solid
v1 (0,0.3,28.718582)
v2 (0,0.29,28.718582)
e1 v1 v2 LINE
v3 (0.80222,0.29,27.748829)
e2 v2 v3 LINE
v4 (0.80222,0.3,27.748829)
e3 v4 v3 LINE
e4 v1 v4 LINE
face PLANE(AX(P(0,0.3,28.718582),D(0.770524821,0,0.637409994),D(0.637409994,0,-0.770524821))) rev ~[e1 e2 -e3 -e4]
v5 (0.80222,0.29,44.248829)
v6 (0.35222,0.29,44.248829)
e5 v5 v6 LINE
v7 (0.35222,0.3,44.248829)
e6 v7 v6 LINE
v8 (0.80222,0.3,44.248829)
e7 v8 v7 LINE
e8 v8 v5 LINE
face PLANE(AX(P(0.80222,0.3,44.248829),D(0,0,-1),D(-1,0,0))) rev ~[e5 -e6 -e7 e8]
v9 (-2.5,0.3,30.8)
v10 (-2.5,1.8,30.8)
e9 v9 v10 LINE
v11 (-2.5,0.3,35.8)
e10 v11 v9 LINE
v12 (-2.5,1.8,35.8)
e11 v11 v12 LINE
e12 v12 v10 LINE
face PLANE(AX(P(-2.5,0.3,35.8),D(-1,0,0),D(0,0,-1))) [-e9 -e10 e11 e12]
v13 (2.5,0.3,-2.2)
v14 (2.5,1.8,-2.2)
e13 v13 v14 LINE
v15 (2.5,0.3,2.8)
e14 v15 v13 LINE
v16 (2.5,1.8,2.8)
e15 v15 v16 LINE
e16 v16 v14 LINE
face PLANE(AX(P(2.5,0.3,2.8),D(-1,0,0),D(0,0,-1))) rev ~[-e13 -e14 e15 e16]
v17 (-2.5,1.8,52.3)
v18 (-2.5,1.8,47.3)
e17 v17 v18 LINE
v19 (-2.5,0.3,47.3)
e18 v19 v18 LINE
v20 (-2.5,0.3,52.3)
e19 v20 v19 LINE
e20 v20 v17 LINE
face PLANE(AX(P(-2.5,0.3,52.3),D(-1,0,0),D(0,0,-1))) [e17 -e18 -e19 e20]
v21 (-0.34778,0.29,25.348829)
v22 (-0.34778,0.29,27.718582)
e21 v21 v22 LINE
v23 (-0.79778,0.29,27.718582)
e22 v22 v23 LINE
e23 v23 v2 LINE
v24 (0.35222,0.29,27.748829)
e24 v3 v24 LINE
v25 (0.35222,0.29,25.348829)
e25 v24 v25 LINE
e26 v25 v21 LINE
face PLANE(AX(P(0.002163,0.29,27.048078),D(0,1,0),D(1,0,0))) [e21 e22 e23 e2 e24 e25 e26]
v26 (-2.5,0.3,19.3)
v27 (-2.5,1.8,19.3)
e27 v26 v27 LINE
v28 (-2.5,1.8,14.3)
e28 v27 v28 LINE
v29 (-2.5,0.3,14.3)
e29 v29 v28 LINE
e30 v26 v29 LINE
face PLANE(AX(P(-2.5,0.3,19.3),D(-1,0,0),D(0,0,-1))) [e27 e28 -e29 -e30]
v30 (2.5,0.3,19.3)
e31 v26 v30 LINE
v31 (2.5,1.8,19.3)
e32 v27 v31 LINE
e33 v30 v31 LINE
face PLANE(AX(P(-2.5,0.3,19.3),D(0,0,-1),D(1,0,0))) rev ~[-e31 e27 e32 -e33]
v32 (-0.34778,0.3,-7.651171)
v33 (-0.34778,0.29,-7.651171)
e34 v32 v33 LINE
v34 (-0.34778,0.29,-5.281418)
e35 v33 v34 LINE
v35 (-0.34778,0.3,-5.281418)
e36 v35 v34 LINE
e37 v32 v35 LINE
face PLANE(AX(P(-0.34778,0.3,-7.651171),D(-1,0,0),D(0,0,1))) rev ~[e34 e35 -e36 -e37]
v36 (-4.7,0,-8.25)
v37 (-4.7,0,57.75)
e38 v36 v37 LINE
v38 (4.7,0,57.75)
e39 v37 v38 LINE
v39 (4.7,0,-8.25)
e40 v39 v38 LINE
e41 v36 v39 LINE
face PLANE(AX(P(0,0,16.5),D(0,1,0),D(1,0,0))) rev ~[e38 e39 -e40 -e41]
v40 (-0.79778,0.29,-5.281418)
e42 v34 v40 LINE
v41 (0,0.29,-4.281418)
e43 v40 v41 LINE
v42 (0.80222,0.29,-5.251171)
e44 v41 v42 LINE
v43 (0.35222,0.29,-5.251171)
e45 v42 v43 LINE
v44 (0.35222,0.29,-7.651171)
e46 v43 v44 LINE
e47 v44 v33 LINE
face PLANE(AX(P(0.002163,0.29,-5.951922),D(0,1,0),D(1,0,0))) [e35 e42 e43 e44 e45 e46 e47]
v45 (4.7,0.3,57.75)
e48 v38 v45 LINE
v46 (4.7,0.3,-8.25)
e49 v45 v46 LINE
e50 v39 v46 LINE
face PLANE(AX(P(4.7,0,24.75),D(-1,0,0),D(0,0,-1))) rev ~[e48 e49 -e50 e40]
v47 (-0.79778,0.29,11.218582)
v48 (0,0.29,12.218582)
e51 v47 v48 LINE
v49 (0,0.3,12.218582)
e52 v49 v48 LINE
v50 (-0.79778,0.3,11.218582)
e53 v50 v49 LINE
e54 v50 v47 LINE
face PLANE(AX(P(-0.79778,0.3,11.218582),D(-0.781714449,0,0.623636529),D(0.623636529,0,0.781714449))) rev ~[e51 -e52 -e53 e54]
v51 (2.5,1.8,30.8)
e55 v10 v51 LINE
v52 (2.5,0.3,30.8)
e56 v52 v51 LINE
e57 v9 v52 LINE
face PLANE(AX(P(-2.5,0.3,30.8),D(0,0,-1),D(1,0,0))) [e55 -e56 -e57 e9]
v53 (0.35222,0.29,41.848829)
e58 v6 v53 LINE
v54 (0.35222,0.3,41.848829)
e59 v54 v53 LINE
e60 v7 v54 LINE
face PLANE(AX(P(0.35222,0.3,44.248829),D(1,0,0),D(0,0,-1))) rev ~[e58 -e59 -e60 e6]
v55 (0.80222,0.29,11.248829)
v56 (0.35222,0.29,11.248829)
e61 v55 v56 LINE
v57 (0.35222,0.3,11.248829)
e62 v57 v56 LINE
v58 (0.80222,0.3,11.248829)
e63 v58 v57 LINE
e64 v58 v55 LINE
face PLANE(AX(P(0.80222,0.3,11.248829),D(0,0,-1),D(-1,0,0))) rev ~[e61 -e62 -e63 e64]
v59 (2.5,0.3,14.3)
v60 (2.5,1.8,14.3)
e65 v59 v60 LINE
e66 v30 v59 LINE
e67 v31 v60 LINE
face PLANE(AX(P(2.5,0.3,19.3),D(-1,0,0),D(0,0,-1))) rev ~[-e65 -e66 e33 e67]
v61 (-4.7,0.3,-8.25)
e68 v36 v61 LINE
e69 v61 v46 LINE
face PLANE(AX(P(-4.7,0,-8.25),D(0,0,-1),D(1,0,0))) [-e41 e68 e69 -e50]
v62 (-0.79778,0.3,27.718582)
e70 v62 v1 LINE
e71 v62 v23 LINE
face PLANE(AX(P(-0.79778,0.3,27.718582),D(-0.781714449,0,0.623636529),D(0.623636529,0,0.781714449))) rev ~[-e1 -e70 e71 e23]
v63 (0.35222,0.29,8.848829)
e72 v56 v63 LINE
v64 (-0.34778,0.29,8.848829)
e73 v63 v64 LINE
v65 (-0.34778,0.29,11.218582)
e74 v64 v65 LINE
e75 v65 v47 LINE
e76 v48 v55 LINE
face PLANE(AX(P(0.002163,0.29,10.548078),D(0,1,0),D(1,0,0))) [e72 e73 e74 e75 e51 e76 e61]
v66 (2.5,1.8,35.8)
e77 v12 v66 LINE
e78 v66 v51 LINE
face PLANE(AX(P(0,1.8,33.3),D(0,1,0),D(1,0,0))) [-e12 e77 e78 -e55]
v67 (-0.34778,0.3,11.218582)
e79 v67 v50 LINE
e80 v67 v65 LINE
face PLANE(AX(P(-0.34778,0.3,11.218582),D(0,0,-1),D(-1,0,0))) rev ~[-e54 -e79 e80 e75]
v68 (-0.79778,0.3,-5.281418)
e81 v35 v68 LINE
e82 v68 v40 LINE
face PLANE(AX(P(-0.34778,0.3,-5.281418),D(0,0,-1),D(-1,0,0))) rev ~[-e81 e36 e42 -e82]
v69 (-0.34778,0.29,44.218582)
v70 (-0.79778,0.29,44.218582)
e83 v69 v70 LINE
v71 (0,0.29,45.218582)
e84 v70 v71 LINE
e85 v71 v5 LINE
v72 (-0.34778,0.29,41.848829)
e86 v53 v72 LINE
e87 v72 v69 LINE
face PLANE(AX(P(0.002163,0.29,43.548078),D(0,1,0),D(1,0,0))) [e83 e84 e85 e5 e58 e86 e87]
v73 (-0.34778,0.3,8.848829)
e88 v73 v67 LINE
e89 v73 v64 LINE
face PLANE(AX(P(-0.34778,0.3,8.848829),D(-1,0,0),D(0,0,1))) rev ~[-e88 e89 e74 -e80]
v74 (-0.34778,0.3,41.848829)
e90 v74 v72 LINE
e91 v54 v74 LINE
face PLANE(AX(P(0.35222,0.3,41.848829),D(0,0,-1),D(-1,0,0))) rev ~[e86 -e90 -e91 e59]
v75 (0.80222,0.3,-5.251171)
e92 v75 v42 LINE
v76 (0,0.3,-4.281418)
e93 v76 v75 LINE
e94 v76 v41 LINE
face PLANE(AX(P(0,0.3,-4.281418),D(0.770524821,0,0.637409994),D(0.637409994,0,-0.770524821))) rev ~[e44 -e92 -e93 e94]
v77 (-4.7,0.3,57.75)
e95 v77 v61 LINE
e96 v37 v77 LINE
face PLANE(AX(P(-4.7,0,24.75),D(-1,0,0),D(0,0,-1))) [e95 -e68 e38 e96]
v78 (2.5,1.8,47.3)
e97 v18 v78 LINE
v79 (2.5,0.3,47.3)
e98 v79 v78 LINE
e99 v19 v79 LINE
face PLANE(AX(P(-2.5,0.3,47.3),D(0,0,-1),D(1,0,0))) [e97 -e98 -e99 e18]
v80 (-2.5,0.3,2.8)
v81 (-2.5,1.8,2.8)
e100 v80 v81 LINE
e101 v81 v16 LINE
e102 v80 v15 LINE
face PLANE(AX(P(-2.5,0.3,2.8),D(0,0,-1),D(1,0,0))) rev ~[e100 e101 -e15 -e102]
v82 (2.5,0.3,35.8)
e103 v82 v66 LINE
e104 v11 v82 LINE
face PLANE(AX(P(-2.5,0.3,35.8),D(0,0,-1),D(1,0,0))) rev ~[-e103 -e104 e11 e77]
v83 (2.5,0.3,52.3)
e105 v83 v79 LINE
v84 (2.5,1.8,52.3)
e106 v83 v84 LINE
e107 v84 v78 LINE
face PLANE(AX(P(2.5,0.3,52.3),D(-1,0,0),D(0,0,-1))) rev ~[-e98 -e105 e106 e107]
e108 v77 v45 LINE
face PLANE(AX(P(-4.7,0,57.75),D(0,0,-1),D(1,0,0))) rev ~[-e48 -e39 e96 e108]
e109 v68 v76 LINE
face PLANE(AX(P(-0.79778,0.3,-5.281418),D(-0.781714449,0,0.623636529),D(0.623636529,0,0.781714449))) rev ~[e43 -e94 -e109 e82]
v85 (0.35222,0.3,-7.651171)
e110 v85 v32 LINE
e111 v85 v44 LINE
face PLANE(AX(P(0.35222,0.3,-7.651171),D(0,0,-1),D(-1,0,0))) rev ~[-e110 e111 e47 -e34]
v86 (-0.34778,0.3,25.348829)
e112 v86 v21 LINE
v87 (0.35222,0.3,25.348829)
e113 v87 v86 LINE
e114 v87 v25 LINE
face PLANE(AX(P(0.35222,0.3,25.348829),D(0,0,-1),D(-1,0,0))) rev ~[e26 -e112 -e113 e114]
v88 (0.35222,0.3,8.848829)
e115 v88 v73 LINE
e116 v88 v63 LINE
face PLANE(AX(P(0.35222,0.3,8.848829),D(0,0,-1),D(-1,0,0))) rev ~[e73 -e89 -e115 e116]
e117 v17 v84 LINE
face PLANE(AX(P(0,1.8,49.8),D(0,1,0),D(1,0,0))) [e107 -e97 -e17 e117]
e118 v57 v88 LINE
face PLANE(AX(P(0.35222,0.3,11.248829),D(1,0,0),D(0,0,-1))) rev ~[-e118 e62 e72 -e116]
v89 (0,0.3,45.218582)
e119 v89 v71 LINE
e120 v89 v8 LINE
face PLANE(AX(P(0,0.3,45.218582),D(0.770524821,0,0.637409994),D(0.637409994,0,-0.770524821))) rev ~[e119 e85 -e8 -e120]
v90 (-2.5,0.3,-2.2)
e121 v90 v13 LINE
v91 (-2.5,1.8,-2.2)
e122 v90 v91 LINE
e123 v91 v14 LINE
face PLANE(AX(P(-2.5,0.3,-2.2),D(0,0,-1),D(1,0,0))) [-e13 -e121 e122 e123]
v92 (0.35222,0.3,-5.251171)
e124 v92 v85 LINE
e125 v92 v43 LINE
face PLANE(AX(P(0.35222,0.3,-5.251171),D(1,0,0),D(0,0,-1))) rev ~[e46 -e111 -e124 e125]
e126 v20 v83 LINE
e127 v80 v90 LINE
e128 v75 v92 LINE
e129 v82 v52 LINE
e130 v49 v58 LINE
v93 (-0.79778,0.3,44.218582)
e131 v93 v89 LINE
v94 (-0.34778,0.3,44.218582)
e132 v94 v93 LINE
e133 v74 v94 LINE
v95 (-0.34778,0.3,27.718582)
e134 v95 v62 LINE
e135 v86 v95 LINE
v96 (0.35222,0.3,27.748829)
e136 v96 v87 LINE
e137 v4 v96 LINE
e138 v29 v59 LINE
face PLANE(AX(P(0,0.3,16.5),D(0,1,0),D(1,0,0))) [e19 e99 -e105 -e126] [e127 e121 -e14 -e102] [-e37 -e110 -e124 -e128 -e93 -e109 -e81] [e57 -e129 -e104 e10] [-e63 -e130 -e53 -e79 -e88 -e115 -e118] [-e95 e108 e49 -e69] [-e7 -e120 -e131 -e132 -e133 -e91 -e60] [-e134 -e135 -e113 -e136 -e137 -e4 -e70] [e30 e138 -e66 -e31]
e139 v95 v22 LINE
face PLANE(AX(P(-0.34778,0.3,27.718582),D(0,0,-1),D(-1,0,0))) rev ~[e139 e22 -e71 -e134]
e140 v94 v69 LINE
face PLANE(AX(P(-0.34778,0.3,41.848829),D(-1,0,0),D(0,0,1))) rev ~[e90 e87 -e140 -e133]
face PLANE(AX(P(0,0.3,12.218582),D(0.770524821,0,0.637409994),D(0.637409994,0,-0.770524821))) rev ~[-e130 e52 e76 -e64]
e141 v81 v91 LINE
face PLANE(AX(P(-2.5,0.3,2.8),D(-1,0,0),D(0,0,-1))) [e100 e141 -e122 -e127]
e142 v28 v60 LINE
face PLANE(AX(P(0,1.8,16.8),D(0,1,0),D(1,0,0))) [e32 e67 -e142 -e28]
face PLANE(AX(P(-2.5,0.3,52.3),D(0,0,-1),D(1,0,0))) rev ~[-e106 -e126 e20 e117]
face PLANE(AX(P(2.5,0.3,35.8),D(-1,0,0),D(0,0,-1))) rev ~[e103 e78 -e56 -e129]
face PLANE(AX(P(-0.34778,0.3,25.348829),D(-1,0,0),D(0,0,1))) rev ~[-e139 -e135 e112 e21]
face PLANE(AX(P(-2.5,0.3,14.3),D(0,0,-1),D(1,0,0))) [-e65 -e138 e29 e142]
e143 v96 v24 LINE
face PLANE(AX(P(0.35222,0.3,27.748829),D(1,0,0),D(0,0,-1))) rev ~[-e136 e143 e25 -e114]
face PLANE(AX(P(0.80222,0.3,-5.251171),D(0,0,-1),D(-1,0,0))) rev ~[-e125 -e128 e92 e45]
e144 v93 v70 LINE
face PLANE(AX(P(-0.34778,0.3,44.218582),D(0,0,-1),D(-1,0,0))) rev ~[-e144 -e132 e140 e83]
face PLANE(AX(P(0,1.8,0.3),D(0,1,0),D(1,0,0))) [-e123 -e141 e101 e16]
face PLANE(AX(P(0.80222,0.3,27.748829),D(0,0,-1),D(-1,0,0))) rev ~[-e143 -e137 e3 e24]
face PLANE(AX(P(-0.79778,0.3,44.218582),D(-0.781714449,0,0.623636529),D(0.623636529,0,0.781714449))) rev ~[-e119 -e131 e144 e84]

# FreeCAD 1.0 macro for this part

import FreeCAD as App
import Part
import Sketcher

V = App.Vector

doc = App.newDocument("Part")
body = doc.addObject("PartDesign::Body", "Body")

# Sketch on XZ plane
sketch1 = body.newObject("Sketcher::SketchObject", "Sketch")
sketch1.AttachmentSupport = (doc.getObject("XZ_Plane"), [""])
sketch1.MapMode = "FlatFace"
sketch1.addGeometry([
    Part.LineSegment(V(-5, -8, 0), V(-5, 8, 0)),
    Part.LineSegment(V(-5, 8, 0), V(5, 8, 0)),
    Part.LineSegment(V(5, 8, 0), V(5, -8, 0)),
    Part.LineSegment(V(5, -8, 0), V(-5, -8, 0)),
], False)
sketch1.addConstraint([
    Sketcher.Constraint("Coincident", 0, 2, 1, 1),
    Sketcher.Constraint("Coincident", 1, 2, 2, 1),
    Sketcher.Constraint("Coincident", 2, 2, 3, 1),
    Sketcher.Constraint("Coincident", 3, 2, 0, 1),
    Sketcher.Constraint("Vertical", 0),
    Sketcher.Constraint("Horizontal", 1),
    Sketcher.Constraint("Vertical", 2),
    Sketcher.Constraint("Horizontal", 3),
    Sketcher.Constraint("Symmetric", 0, 2, 2, 2, -1, 1),
    Sketcher.Constraint("DistanceX", 1, 1, 1, 2, 9.4),
    Sketcher.Constraint("DistanceY", 0, 1, 0, 2, 16.5),
])
pad1 = body.newObject("PartDesign::Pad", "Pad")
pad1.Profile = sketch1
pad1.Length = 0.3
pad1.Reversed = True

# Sketch on XZ plane
sketch2 = body.newObject("Sketcher::SketchObject", "Sketch001")
sketch2.AttachmentSupport = (doc.getObject("XZ_Plane"), [""])
sketch2.MapMode = "FlatFace"
sketch2.AttachmentOffset = App.Placement(V(0, 0, -0.3), App.Rotation())
sketch2.addGeometry([
    Part.LineSegment(V(-2, -2, 0), V(-2, 3, 0)),
    Part.LineSegment(V(-2, 3, 0), V(2, 3, 0)),
    Part.LineSegment(V(2, 3, 0), V(2, -2, 0)),
    Part.LineSegment(V(2, -2, 0), V(-2, -2, 0)),
], False)
sketch2.addConstraint([
    Sketcher.Constraint("Coincident", 0, 2, 1, 1),
    Sketcher.Constraint("Coincident", 1, 2, 2, 1),
    Sketcher.Constraint("Coincident", 2, 2, 3, 1),
    Sketcher.Constraint("Coincident", 3, 2, 0, 1),
    Sketcher.Constraint("Vertical", 0),
    Sketcher.Constraint("Horizontal", 1),
    Sketcher.Constraint("Vertical", 2),
    Sketcher.Constraint("Horizontal", 3),
    Sketcher.Constraint("Equal", 3, 0),
    Sketcher.Constraint("DistanceX", 1, 1, 1, 2, 5.0),
    Sketcher.Constraint("DistanceX", 0, 2, -1, 1, 2.5),
    Sketcher.Constraint("DistanceY", -1, 1, 0, 2, 2.8),
])
pad2 = body.newObject("PartDesign::Pad", "Pad001")
pad2.Profile = sketch2
pad2.Length = 1.5
pad2.Reversed = True

# Sketch on XZ plane
sketch3 = body.newObject("Sketcher::SketchObject", "Sketch002")
sketch3.AttachmentSupport = (doc.getObject("XZ_Plane"), [""])
sketch3.MapMode = "FlatFace"
sketch3.AttachmentOffset = App.Placement(V(0, 0, -0.3), App.Rotation())
sketch3.addGeometry([
    Part.LineSegment(V(-0.35, -5.28, 0), V(-0.8, -5.28, 0)),  # 0
    Part.LineSegment(V(-0.8, -5.28, 0), V(0, -4.28, 0)),  # 1
    Part.LineSegment(V(0, -4.28, 0), V(0.8, -5.25, 0)),  # 2
    Part.LineSegment(V(0.8, -5.25, 0), V(0.35, -5.25, 0)),  # 3
    Part.LineSegment(V(0.35, -5.25, 0), V(0.35, -7.65, 0)),  # 4
    Part.LineSegment(V(0.35, -7.65, 0), V(-0.35, -7.65, 0)),  # 5
    Part.LineSegment(V(-0.35, -7.65, 0), V(-0.35, -5.28, 0)),  # 6
], False)
sketch3.addConstraint([
    Sketcher.Constraint("Coincident", 0, 2, 1, 1),
    Sketcher.Constraint("Coincident", 1, 2, 2, 1),
    Sketcher.Constraint("Coincident", 2, 2, 3, 1),
    Sketcher.Constraint("Coincident", 3, 2, 4, 1),
    Sketcher.Constraint("Coincident", 4, 2, 5, 1),
    Sketcher.Constraint("Coincident", 5, 2, 6, 1),
    Sketcher.Constraint("Coincident", 6, 2, 0, 1),
    Sketcher.Constraint("Horizontal", 0),
    Sketcher.Constraint("Horizontal", 3),
    Sketcher.Constraint("Vertical", 4),
    Sketcher.Constraint("Horizontal", 5),
    Sketcher.Constraint("Vertical", 6),
    Sketcher.Constraint("PointOnObject", 1, 2, -2),
    Sketcher.Constraint("Equal", 0, 3),
    Sketcher.Constraint("DistanceX", 5, 2, 5, 1, 0.7),
    Sketcher.Constraint("DistanceY", 4, 2, 4, 1, 2.4),
    Sketcher.Constraint("DistanceY", 0, 2, 1, 2, 1.0),
    Sketcher.Constraint("DistanceX", 0, 2, 0, 1, 0.45),
    Sketcher.Constraint("Distance", 1, 1.279239),
    Sketcher.Constraint("Distance", 2, 1.258561),
    Sketcher.Constraint("DistanceY", 2, 2, -1, 1, 5.251171),
])
pocket1 = body.newObject("PartDesign::Pocket", "Pocket")
pocket1.Profile = sketch3
pocket1.Length = 0.01
pocket1.Reversed = True
doc.recompute()

linearpattern = body.newObject("PartDesign::LinearPattern", "LinearPattern")
linearpattern.Originals = [pad1, pad2, pocket1]
linearpattern.Direction = (doc.getObject("Z_Axis"), [""])
linearpattern.Mode = "offset"
linearpattern.Offset = 16.5
linearpattern.Occurrences = 4
body.Tip = linearpattern

doc.recompute()
